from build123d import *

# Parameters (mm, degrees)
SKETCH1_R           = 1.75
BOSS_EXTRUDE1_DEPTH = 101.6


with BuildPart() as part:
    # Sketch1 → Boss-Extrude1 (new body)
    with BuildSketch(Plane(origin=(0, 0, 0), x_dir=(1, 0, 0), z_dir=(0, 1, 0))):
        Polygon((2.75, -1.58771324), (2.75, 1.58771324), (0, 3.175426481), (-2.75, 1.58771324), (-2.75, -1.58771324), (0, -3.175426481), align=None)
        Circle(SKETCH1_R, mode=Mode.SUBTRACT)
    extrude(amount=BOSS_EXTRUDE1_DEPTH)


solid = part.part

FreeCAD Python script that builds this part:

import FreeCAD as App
import Part
import Sketcher
from FreeCAD import Vector
Q = App.Units.Quantity

doc = App.newDocument("Part")
body = doc.addObject("PartDesign::Body", "Body")

sketch1 = body.newObject("Sketcher::SketchObject", "Sketch")
sketch1.AttachmentSupport = (doc.getObject("XZ_Plane"), [""])
sketch1.MapMode = "FlatFace"
sketch1.addGeometry(Part.LineSegment(Vector(2.8, 1.6, 0), Vector(2.8, -1.6, 0)), False)
sketch1.addGeometry(Part.LineSegment(Vector(2.8, -1.6, 0), Vector(0, -3.2, 0)), False)
sketch1.addGeometry(Part.LineSegment(Vector(0, -3.2, 0), Vector(-2.8, -1.6, 0)), False)
sketch1.addGeometry(Part.LineSegment(Vector(-2.8, -1.6, 0), Vector(-2.8, 1.6, 0)), False)
sketch1.addGeometry(Part.LineSegment(Vector(-2.8, 1.6, 0), Vector(0, 3.2, 0)), False)
sketch1.addGeometry(Part.LineSegment(Vector(0, 3.2, 0), Vector(2.8, 1.6, 0)), False)
sketch1.addGeometry(Part.Circle(Vector(0, 0, 0), Vector(0, 0, 1), 1.8), False)
sketch1.addConstraint(Sketcher.Constraint("Coincident", 0, 2, 1, 1))
sketch1.addConstraint(Sketcher.Constraint("Coincident", 1, 2, 2, 1))
sketch1.addConstraint(Sketcher.Constraint("Coincident", 2, 2, 3, 1))
sketch1.addConstraint(Sketcher.Constraint("Coincident", 3, 2, 4, 1))
sketch1.addConstraint(Sketcher.Constraint("Coincident", 4, 2, 5, 1))
sketch1.addConstraint(Sketcher.Constraint("Coincident", 5, 2, 0, 1))
sketch1.addConstraint(Sketcher.Constraint("Vertical", 0))
sketch1.addConstraint(Sketcher.Constraint("Vertical", 3))
sketch1.addConstraint(Sketcher.Constraint("Coincident", 6, 3, -1, 1))
sketch1.addConstraint(Sketcher.Constraint("Symmetric", 0, 2, 3, 2, -1, 1))
sketch1.addConstraint(Sketcher.Constraint("Symmetric", 1, 2, 4, 2, -1, 1))
sketch1.addConstraint(Sketcher.Constraint("PointOnObject", 1, 2, -2))
sketch1.addConstraint(Sketcher.Constraint("Parallel", 2, 5))
sketch1.addConstraint(Sketcher.Constraint("Horizontal", 0, 2, 2, 2))
sketch1.addConstraint(Sketcher.Constraint("Diameter", 6, 3.5))
sketch1.addConstraint(Sketcher.Constraint("Angle", 1, Q("-150 deg")))
sketch1.addConstraint(Sketcher.Constraint("DistanceX", 2, 2, 0, 2, 5.5))
sketch1.addConstraint(Sketcher.Constraint("DistanceY", 0, 2, 0, 1, 3.175426))
pad1 = body.newObject("PartDesign::Pad", "Pad")
pad1.Profile = sketch1
pad1.Length = 101.6
pad1.Reversed = True

doc.recompute()
